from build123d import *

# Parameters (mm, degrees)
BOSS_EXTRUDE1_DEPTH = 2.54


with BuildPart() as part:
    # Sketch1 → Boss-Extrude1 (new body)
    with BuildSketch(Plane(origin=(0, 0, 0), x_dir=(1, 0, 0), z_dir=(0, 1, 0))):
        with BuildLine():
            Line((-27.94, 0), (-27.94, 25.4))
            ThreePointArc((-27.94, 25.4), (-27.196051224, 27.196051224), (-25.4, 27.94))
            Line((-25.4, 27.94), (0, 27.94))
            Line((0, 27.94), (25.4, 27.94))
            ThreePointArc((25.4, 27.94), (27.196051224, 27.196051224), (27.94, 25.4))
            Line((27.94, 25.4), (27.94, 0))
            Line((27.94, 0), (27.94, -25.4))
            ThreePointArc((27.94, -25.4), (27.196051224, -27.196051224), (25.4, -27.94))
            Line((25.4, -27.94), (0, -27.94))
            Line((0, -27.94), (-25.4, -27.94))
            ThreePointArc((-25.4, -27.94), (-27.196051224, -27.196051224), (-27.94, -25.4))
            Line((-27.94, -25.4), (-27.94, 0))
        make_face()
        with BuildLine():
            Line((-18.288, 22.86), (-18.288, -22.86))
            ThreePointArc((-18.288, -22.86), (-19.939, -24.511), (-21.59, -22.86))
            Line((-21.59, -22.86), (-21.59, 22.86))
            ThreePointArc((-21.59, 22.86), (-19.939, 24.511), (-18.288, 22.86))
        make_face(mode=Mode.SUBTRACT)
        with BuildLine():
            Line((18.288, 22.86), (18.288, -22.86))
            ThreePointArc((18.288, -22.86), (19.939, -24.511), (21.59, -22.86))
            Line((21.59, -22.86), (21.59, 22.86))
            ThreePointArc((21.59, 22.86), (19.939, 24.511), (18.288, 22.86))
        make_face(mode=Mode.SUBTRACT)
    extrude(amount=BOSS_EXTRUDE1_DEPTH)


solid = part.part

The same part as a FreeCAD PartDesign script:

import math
import FreeCAD as App
import Part
import Sketcher
Q = App.Units.Quantity

doc = App.newDocument("Part")
body = doc.addObject("PartDesign::Body", "Body")

# Sketch on XZ plane
sketch1 = doc.addObject("Sketcher::SketchObject", "Sketch")
body.addObject(sketch1)
sketch1.AttachmentSupport = (doc.XZ_Plane, [""])
sketch1.MapMode = "FlatFace"
sketch1.addGeometry(Part.ArcOfCircle(Part.Circle(App.Vector(-25.4, -25.4, 0), App.Vector(0, 0, 1), 2.5), math.radians(-180), math.radians(-90)), False)
sketch1.addGeometry(Part.LineSegment(App.Vector(-27.9, -25.4, 0), App.Vector(-27.9, 25.4, 0)), False)
sketch1.addGeometry(Part.ArcOfCircle(Part.Circle(App.Vector(-25.4, 25.4, 0), App.Vector(0, 0, 1), 2.5), math.radians(90), math.radians(180)), False)
sketch1.addGeometry(Part.LineSegment(App.Vector(-25.4, 27.9, 0), App.Vector(25.4, 27.9, 0)), False)
sketch1.addGeometry(Part.ArcOfCircle(Part.Circle(App.Vector(25.4, 25.4, 0), App.Vector(0, 0, 1), 2.5), math.radians(0), math.radians(90)), False)
sketch1.addGeometry(Part.LineSegment(App.Vector(27.9, 25.4, 0), App.Vector(27.9, -25.4, 0)), False)
sketch1.addGeometry(Part.ArcOfCircle(Part.Circle(App.Vector(25.4, -25.4, 0), App.Vector(0, 0, 1), 2.5), math.radians(-90), math.radians(0)), False)
sketch1.addGeometry(Part.LineSegment(App.Vector(25.4, -27.9, 0), App.Vector(-25.4, -27.9, 0)), False)
sketch1.addGeometry(Part.ArcOfCircle(Part.Circle(App.Vector(19.9, -22.9, 0), App.Vector(0, 0, 1), 1.7), math.radians(180), math.radians(360)), False)
sketch1.addGeometry(Part.LineSegment(App.Vector(21.6, -22.9, 0), App.Vector(21.6, 22.9, 0)), False)
sketch1.addGeometry(Part.ArcOfCircle(Part.Circle(App.Vector(19.9, 22.9, 0), App.Vector(0, 0, 1), 1.7), math.radians(0), math.radians(180)), False)
sketch1.addGeometry(Part.LineSegment(App.Vector(18.3, 22.9, 0), App.Vector(18.3, -22.9, 0)), False)
sketch1.addGeometry(Part.LineSegment(App.Vector(-18.3, -22.9, 0), App.Vector(-18.3, 22.9, 0)), False)
sketch1.addGeometry(Part.ArcOfCircle(Part.Circle(App.Vector(-19.9, 22.9, 0), App.Vector(0, 0, 1), 1.7), math.radians(0), math.radians(180)), False)
sketch1.addGeometry(Part.LineSegment(App.Vector(-21.6, 22.9, 0), App.Vector(-21.6, -22.9, 0)), False)
sketch1.addGeometry(Part.ArcOfCircle(Part.Circle(App.Vector(-19.9, -22.9, 0), App.Vector(0, 0, 1), 1.7), math.radians(180), math.radians(360)), False)
sketch1.addConstraint(Sketcher.Constraint("Tangent", 0, 1, 1, 1))
sketch1.addConstraint(Sketcher.Constraint("Tangent", 1, 2, 2, 2))
sketch1.addConstraint(Sketcher.Constraint("Tangent", 2, 1, 3, 1))
sketch1.addConstraint(Sketcher.Constraint("Tangent", 3, 2, 4, 2))
sketch1.addConstraint(Sketcher.Constraint("Tangent", 4, 1, 5, 1))
sketch1.addConstraint(Sketcher.Constraint("Tangent", 5, 2, 6, 2))
sketch1.addConstraint(Sketcher.Constraint("Tangent", 6, 1, 7, 1))
sketch1.addConstraint(Sketcher.Constraint("Tangent", 7, 2, 0, 2))
sketch1.addConstraint(Sketcher.Constraint("Tangent", 8, 2, 9, 1))
sketch1.addConstraint(Sketcher.Constraint("Tangent", 9, 2, 10, 1))
sketch1.addConstraint(Sketcher.Constraint("Tangent", 10, 2, 11, 1))
sketch1.addConstraint(Sketcher.Constraint("Tangent", 11, 2, 8, 1))
sketch1.addConstraint(Sketcher.Constraint("Tangent", 12, 2, 13, 1))
sketch1.addConstraint(Sketcher.Constraint("Tangent", 13, 2, 14, 1))
sketch1.addConstraint(Sketcher.Constraint("Tangent", 14, 2, 15, 1))
sketch1.addConstraint(Sketcher.Constraint("Tangent", 15, 2, 12, 1))
sketch1.addConstraint(Sketcher.Constraint("Vertical", 1))
sketch1.addConstraint(Sketcher.Constraint("Horizontal", 3))
sketch1.addConstraint(Sketcher.Constraint("Vertical", 5))
sketch1.addConstraint(Sketcher.Constraint("Horizontal", 7))
sketch1.addConstraint(Sketcher.Constraint("Vertical", 9))
sketch1.addConstraint(Sketcher.Constraint("Vertical", 11))
sketch1.addConstraint(Sketcher.Constraint("Vertical", 12))
sketch1.addConstraint(Sketcher.Constraint("Vertical", 14))
sketch1.addConstraint(Sketcher.Constraint("Equal", 0, 2))
sketch1.addConstraint(Sketcher.Constraint("Equal", 2, 4))
sketch1.addConstraint(Sketcher.Constraint("Equal", 4, 6))
sketch1.addConstraint(Sketcher.Constraint("Equal", 10, 13))
sketch1.addConstraint(Sketcher.Constraint("Symmetric", 0, 3, 4, 3, -1, 1))
sketch1.addConstraint(Sketcher.Constraint("Symmetric", 8, 3, 13, 3, -1, 1))
sketch1.addConstraint(Sketcher.Constraint("Horizontal", 10, 3, 13, 3))
sketch1.addConstraint(Sketcher.Constraint("Horizontal", 8, 3, 15, 3))
sketch1.addConstraint(Sketcher.Constraint("Equal", 7, 1))
sketch1.addConstraint(Sketcher.Constraint("Radius", 0, Q("0.1 in")))
sketch1.addConstraint(Sketcher.Constraint("DistanceX", 3, 1, 3, 2, Q("2 in")))
sketch1.addConstraint(Sketcher.Constraint("DistanceY", 9, 1, 9, 2, Q("1.8 in")))
sketch1.addConstraint(Sketcher.Constraint("Radius", 8, Q("0.065 in")))
sketch1.addConstraint(Sketcher.Constraint("DistanceX", -1, 1, 8, 2, Q("0.85 in")))
pad1 = doc.addObject("PartDesign::Pad", "Pad")
body.addObject(pad1)
pad1.Profile = sketch1
pad1.Length = Q("0.1 in")
pad1.Reversed = True

doc.recompute()
